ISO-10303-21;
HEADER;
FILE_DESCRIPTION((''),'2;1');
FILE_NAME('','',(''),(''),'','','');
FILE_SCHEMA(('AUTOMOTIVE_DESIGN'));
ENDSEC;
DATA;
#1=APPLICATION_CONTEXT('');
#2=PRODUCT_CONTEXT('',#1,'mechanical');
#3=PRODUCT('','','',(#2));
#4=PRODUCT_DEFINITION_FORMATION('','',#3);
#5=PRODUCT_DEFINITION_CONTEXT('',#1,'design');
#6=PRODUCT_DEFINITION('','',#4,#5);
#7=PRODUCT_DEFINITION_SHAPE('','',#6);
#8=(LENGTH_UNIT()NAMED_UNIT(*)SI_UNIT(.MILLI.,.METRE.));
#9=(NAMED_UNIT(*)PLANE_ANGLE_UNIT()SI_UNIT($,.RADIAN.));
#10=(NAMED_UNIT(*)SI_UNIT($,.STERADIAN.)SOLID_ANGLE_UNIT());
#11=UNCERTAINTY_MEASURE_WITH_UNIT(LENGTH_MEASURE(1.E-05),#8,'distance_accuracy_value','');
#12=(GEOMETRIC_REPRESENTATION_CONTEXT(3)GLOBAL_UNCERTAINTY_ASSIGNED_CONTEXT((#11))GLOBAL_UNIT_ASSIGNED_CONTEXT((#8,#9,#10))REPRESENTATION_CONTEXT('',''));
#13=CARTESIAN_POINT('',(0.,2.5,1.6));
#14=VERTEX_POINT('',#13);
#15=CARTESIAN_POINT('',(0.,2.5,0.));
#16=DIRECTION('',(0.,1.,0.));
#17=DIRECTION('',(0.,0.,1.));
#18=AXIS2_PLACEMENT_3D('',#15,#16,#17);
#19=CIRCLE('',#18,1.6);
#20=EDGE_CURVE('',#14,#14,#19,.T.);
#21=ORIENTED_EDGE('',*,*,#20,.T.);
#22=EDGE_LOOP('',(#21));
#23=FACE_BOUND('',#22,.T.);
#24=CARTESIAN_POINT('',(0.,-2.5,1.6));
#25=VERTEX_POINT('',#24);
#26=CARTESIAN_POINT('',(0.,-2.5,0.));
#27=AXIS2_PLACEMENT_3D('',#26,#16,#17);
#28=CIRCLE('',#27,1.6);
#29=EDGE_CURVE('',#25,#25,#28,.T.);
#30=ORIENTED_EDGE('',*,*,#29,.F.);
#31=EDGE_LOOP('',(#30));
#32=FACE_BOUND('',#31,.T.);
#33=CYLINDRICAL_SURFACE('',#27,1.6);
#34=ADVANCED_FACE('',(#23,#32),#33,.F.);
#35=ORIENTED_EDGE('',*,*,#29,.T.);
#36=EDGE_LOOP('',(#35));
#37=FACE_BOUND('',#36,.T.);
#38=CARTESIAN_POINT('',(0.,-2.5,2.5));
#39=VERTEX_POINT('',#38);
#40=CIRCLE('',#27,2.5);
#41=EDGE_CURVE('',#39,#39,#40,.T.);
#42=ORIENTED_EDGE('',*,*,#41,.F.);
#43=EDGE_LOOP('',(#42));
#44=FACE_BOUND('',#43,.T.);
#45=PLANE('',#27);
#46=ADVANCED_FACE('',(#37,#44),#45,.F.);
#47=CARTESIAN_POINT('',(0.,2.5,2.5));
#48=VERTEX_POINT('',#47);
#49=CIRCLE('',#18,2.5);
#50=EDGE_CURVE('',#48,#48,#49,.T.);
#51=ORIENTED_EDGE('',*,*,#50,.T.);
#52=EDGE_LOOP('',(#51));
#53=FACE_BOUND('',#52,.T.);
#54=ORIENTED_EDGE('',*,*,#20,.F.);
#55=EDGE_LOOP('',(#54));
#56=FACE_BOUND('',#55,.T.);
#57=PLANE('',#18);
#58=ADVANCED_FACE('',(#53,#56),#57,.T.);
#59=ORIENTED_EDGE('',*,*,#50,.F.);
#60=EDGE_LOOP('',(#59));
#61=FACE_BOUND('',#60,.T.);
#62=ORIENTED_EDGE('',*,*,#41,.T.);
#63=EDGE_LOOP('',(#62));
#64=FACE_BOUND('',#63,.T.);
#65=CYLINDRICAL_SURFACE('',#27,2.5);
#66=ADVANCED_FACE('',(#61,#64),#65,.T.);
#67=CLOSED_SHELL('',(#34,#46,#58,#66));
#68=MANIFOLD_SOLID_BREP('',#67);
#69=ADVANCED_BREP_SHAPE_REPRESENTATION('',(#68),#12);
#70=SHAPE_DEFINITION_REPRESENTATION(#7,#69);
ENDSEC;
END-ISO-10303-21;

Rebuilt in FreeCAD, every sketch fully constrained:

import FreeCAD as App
import Part
import Sketcher
from FreeCAD import Vector

doc = App.newDocument("Part")
body = doc.addObject("PartDesign::Body", "Body")

# Sketch on XZ plane
sketch1 = body.newObject("Sketcher::SketchObject", "Sketch")
sketch1.AttachmentSupport = (doc.getObject("XZ_Plane"), [""])
sketch1.MapMode = "FlatFace"
sketch1.addGeometry(Part.Circle(Vector(0, 0, 0), Vector(0, 0, 1), 2.5), False)
sketch1.addGeometry(Part.Circle(Vector(0, 0, 0), Vector(0, 0, 1), 1.6), False)
sketch1.addConstraint(Sketcher.Constraint("Coincident", 0, 3, -1, 1))
sketch1.addConstraint(Sketcher.Constraint("Coincident", 1, 3, -1, 1))
sketch1.addConstraint(Sketcher.Constraint("Diameter", 0, 5.0))
sketch1.addConstraint(Sketcher.Constraint("Diameter", 1, 3.2))
pad1 = body.newObject("PartDesign::Pad", "Pad")
pad1.Profile = sketch1
pad1.Type = "TwoLengths"
pad1.Length = 2.5
pad1.Length2 = 2.5
pad1.Reversed = True

doc.recompute()
